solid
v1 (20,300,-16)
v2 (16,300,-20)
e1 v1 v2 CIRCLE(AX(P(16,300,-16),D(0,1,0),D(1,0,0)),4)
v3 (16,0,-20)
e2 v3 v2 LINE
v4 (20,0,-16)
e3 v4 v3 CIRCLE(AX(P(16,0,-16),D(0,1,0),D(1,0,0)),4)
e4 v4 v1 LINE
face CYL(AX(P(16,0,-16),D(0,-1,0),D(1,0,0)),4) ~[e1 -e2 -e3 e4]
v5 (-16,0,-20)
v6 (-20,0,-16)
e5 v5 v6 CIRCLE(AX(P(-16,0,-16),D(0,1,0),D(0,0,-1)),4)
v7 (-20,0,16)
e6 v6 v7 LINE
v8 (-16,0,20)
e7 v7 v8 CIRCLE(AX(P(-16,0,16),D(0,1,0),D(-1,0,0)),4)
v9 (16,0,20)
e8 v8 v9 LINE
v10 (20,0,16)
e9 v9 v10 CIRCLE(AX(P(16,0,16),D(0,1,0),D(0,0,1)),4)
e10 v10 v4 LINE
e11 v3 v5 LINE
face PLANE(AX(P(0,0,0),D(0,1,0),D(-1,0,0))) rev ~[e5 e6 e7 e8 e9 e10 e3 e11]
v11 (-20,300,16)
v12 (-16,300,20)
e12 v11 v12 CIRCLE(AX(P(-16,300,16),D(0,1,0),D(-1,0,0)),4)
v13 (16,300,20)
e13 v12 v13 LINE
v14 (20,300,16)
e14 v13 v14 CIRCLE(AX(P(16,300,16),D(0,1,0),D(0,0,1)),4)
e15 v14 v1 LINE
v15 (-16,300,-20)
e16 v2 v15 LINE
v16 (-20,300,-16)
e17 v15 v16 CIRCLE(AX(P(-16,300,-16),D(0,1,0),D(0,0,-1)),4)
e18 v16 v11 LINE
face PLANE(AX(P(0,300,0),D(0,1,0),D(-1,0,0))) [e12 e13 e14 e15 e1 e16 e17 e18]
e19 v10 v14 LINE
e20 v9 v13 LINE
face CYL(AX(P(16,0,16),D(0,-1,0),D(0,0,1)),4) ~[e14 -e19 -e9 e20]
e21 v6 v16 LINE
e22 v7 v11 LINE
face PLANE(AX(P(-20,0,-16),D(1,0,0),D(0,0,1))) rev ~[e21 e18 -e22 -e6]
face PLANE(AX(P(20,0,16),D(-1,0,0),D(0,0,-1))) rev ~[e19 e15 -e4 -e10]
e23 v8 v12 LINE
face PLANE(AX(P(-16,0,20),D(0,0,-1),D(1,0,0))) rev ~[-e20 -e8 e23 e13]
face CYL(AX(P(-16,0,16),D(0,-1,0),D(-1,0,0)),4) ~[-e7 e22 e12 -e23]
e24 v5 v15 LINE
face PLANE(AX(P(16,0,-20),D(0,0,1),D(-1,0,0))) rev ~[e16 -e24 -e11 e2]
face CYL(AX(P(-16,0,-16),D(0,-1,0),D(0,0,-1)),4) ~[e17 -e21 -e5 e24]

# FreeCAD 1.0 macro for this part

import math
import FreeCAD as App
import Part
import Sketcher
from FreeCAD import Vector

doc = App.newDocument("Part")
body = doc.addObject("PartDesign::Body", "Body")

# Sketch on XZ plane
sketch1 = body.newObject("Sketcher::SketchObject", "Sketch")
sketch1.AttachmentSupport = (doc.getObject("XZ_Plane"), [""])
sketch1.MapMode = "FlatFace"
sketch1.addGeometry([
    Part.ArcOfCircle(Part.Circle(Vector(-16, 16, 0), Vector(0, 0, 1), 4), math.radians(90), math.radians(180)),  # 0
    Part.LineSegment(Vector(-16, 20, 0), Vector(16, 20, 0)),  # 1
    Part.ArcOfCircle(Part.Circle(Vector(16, 16, 0), Vector(0, 0, 1), 4), math.radians(0), math.radians(90)),  # 2
    Part.LineSegment(Vector(20, 16, 0), Vector(20, -16, 0)),  # 3
    Part.ArcOfCircle(Part.Circle(Vector(16, -16, 0), Vector(0, 0, 1), 4), math.radians(-90), math.radians(0)),  # 4
    Part.LineSegment(Vector(16, -20, 0), Vector(-16, -20, 0)),  # 5
    Part.ArcOfCircle(Part.Circle(Vector(-16, -16, 0), Vector(0, 0, 1), 4), math.radians(180), math.radians(270)),  # 6
    Part.LineSegment(Vector(-20, -16, 0), Vector(-20, 16, 0)),  # 7
], False)
sketch1.addConstraint([
    Sketcher.Constraint("Tangent", 0, 1, 1, 1),
    Sketcher.Constraint("Tangent", 1, 2, 2, 2),
    Sketcher.Constraint("Tangent", 2, 1, 3, 1),
    Sketcher.Constraint("Tangent", 3, 2, 4, 2),
    Sketcher.Constraint("Tangent", 4, 1, 5, 1),
    Sketcher.Constraint("Tangent", 5, 2, 6, 2),
    Sketcher.Constraint("Tangent", 6, 1, 7, 1),
    Sketcher.Constraint("Tangent", 7, 2, 0, 2),
    Sketcher.Constraint("Horizontal", 1),
    Sketcher.Constraint("Vertical", 3),
    Sketcher.Constraint("Horizontal", 5),
    Sketcher.Constraint("Vertical", 7),
    Sketcher.Constraint("Equal", 0, 2),
    Sketcher.Constraint("Equal", 2, 4),
    Sketcher.Constraint("Equal", 4, 6),
    Sketcher.Constraint("Symmetric", 0, 3, 4, 3, -1, 1),
    Sketcher.Constraint("Equal", 5, 3),
    Sketcher.Constraint("Radius", 0, 4.0),
    Sketcher.Constraint("DistanceX", 1, 1, 1, 2, 32.0),
])
pad1 = body.newObject("PartDesign::Pad", "Pad")
pad1.Profile = sketch1
pad1.Length = 300
pad1.Reversed = True

doc.recompute()
